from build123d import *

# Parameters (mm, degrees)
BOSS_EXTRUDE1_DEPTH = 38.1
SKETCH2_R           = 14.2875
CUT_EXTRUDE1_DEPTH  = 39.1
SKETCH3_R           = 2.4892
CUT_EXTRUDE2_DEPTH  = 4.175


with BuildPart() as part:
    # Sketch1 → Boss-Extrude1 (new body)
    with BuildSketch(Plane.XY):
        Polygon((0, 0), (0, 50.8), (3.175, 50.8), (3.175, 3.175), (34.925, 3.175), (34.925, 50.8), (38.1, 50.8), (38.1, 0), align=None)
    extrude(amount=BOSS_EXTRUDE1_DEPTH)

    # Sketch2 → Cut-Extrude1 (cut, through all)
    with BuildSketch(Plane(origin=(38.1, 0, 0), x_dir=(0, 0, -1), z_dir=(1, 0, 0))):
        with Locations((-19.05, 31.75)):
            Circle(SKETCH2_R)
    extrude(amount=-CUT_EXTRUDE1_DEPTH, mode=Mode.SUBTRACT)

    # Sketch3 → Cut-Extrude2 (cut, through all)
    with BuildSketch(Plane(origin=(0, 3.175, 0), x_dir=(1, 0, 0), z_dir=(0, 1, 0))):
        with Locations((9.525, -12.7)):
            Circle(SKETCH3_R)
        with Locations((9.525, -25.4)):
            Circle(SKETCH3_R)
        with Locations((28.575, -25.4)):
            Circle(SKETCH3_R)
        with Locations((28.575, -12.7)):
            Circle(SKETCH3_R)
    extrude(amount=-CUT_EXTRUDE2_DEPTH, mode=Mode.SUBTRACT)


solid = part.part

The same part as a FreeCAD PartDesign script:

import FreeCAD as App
import Part
import Sketcher
from FreeCAD import Vector
Q = App.Units.Quantity


def add_polygon(sketch, points):
    """Adds a closed chain of lines whose ends are joined by coincident constraints."""
    first, n = sketch.GeometryCount, len(points)
    for a, b in zip(points, points[1:] + points[:1]):
        sketch.addGeometry(Part.LineSegment(App.Vector(*a, 0), App.Vector(*b, 0)), False)
    for i in range(n):
        sketch.addConstraint(Sketcher.Constraint("Coincident", first + i, 2, first + (i + 1) % n, 1))

doc = App.newDocument("Part")
body = doc.addObject("PartDesign::Body", "Body")

sketch1 = doc.addObject("Sketcher::SketchObject", "Sketch")
body.addObject(sketch1)
sketch1.AttachmentSupport = (doc.XY_Plane, [""])
sketch1.MapMode = "FlatFace"
add_polygon(sketch1, [(0, 50.8), (0, 0), (38.1, 0), (38.1, 50.8), (34.9, 50.8), (34.9, 3.2), (3.2, 3.2), (3.2, 50.8)])
sketch1.addConstraint([
    Sketcher.Constraint("Vertical", 0),
    Sketcher.Constraint("Horizontal", 1),
    Sketcher.Constraint("Vertical", 2),
    Sketcher.Constraint("Horizontal", 3),
    Sketcher.Constraint("Vertical", 4),
    Sketcher.Constraint("Horizontal", 5),
    Sketcher.Constraint("Vertical", 6),
    Sketcher.Constraint("Horizontal", 7),
    Sketcher.Constraint("Coincident", 0, 2, -1, 1),
    Sketcher.Constraint("Horizontal", 3, 2, 6, 2),
    Sketcher.Constraint("Equal", 3, 7),
    Sketcher.Constraint("DistanceY", 0, 2, 0, 1, Q("2 in")),
    Sketcher.Constraint("DistanceX", 1, 1, 1, 2, Q("1.5 in")),
    Sketcher.Constraint("DistanceX", 5, 2, 5, 1, Q("1.25 in")),
    Sketcher.Constraint("DistanceY", 4, 2, 4, 1, Q("1.875 in")),
])
pad1 = doc.addObject("PartDesign::Pad", "Pad")
body.addObject(pad1)
pad1.Profile = sketch1
pad1.Length = Q("1.5 in")

sketch2 = doc.addObject("Sketcher::SketchObject", "Sketch001")
body.addObject(sketch2)
sketch2.AttachmentSupport = (doc.YZ_Plane, [""])
sketch2.MapMode = "FlatFace"
sketch2.AttachmentOffset = App.Placement(Vector(0, 0, 1.5 * 25.4), App.Rotation())
sketch2.addGeometry(Part.Circle(Vector(32, 19, 0), Vector(0, 0, 1), 14), False)
sketch2.addConstraint([
    Sketcher.Constraint("Diameter", 0, Q("1.125 in")),
    Sketcher.Constraint("DistanceX", -1, 1, 0, 3, Q("1.25 in")),
    Sketcher.Constraint("DistanceY", -1, 1, 0, 3, Q("0.75 in")),
])
pocket1 = doc.addObject("PartDesign::Pocket", "Pocket")
body.addObject(pocket1)
pocket1.Profile = sketch2
pocket1.Type = "ThroughAll"

sketch3 = doc.addObject("Sketcher::SketchObject", "Sketch002")
body.addObject(sketch3)
sketch3.AttachmentSupport = (doc.XZ_Plane, [""])
sketch3.MapMode = "FlatFace"
sketch3.AttachmentOffset = App.Placement(Vector(0, 0, -0.125 * 25.4), App.Rotation())
sketch3.addGeometry([
    Part.Circle(Vector(9.5, 12.7, 0), Vector(0, 0, 1), 2.5),
    Part.Circle(Vector(9.5, 25.4, 0), Vector(0, 0, 1), 2.5),
    Part.Circle(Vector(28.6, 25.4, 0), Vector(0, 0, 1), 2.5),
    Part.Circle(Vector(28.6, 12.7, 0), Vector(0, 0, 1), 2.5),
], False)
sketch3.addConstraint([
    Sketcher.Constraint("Equal", 0, 1),
    Sketcher.Constraint("Equal", 1, 2),
    Sketcher.Constraint("Equal", 2, 3),
    Sketcher.Constraint("Horizontal", 1, 3, 2, 3),
    Sketcher.Constraint("Horizontal", 0, 3, 3, 3),
    Sketcher.Constraint("Vertical", 0, 3, 1, 3),
    Sketcher.Constraint("Vertical", 2, 3, 3, 3),
    Sketcher.Constraint("Diameter", 0, Q("0.196 in")),
    Sketcher.Constraint("DistanceY", -1, 1, 1, 3, Q("1 in")),
    Sketcher.Constraint("DistanceY", -1, 1, 0, 3, Q("0.5 in")),
    Sketcher.Constraint("DistanceX", 1, 3, 2, 3, Q("0.75 in")),
    Sketcher.Constraint("DistanceX", -1, 1, 0, 3, Q("0.375 in")),
])
pocket2 = doc.addObject("PartDesign::Pocket", "Pocket001")
body.addObject(pocket2)
pocket2.Profile = sketch3
pocket2.Type = "ThroughAll"
pocket2.Reversed = True

doc.recompute()
